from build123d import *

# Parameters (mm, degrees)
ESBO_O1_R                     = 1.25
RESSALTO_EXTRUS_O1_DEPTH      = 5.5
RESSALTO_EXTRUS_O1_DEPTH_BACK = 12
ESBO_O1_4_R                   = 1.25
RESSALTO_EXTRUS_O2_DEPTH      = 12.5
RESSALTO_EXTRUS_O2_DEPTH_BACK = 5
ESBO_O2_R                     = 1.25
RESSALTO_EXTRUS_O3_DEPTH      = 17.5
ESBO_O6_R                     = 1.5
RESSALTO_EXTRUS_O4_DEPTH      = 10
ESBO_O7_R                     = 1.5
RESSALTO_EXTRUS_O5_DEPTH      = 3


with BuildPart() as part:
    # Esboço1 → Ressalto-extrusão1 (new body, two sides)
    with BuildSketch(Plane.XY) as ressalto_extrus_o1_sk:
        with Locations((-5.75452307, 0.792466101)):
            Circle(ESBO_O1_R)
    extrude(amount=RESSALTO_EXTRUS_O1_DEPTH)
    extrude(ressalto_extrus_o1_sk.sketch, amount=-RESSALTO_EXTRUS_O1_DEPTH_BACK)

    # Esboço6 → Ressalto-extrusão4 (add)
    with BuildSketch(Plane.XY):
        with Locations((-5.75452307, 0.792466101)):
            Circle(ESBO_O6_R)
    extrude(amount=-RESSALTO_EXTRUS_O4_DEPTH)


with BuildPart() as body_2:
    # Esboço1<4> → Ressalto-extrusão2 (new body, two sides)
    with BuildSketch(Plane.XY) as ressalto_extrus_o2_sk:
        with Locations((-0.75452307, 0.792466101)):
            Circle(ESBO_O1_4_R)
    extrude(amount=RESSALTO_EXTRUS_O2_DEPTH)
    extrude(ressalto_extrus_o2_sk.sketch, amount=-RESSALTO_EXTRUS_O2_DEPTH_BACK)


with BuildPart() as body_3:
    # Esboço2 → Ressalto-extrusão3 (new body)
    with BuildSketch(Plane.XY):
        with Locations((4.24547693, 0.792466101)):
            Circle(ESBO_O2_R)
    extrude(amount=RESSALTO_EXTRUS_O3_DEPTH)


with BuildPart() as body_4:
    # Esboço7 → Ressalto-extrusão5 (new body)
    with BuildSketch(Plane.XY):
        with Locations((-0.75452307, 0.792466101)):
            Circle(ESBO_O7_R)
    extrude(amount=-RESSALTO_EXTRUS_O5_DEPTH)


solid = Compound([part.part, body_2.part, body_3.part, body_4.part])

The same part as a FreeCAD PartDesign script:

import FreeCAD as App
import Part
import Sketcher

V = App.Vector
Q = App.Units.Quantity

doc = App.newDocument("Part")
params = doc.addObject("Spreadsheet::Sheet", "Params")
for row, (alias, value) in enumerate([
    ("sketch1_diameter", "2.5 mm"),
    ("pad1_length", "5.5 mm"),
    ("pad1_length2", "12 mm"),
    ("sketch2_diameter", "3 mm"),
    ("pad2_length", "10 mm"),
    ("sketch3_diameter", "2.5 mm"),
    ("pad3_length", "12.5 mm"),
    ("pad3_length2", "5 mm"),
    ("sketch4_diameter", "2.5 mm"),
    ("pad4_length", "17.5 mm"),
    ("sketch5_diameter", "3 mm"),
    ("pad5_length", "3 mm"),
], start=1):
    params.set(f"A{row}", alias)
    params.set(f"B{row}", "=" + value)
    params.setAlias(f"B{row}", alias)

body = doc.addObject("PartDesign::Body", "Body")

sketch1 = body.newObject("Sketcher::SketchObject", "Sketch")
sketch1.AttachmentSupport = (doc.getObject("XY_Plane"), [""])
sketch1.MapMode = "FlatFace"
sketch1.addGeometry(Part.Circle(V(-5.8, 0.8, 0), V(0, 0, 1), 1.2), False)
sketch1.addConstraint([
    Sketcher.Constraint("Diameter", 0, Q("2.5 mm")),
    Sketcher.Constraint("DistanceX", 0, 3, -1, 1, Q("5.754523 mm")),
    Sketcher.Constraint("DistanceY", -1, 1, 0, 3, Q("0.792466 mm")),
])
sketch1.setExpression("Constraints[0]", "Params.sketch1_diameter")
pad1 = body.newObject("PartDesign::Pad", "Pad")
pad1.Profile = sketch1
pad1.Type = "TwoLengths"
pad1.setExpression("Length", "Params.pad1_length")
pad1.setExpression("Length2", "Params.pad1_length2")

sketch2 = body.newObject("Sketcher::SketchObject", "Sketch001")
sketch2.AttachmentSupport = (doc.getObject("XY_Plane"), [""])
sketch2.MapMode = "FlatFace"
sketch2.addGeometry(Part.Circle(V(-5.8, 0.8, 0), V(0, 0, 1), 1.5), False)
sketch2.addConstraint([
    Sketcher.Constraint("Diameter", 0, Q("3 mm")),
    Sketcher.Constraint("DistanceX", 0, 3, -1, 1, Q("5.754523 mm")),
    Sketcher.Constraint("DistanceY", -1, 1, 0, 3, Q("0.792466 mm")),
])
sketch2.setExpression("Constraints[0]", "Params.sketch2_diameter")
pad2 = body.newObject("PartDesign::Pad", "Pad001")
pad2.Profile = sketch2
pad2.setExpression("Length", "Params.pad2_length")
pad2.Reversed = True
body2 = doc.addObject("PartDesign::Body", "Body001")

sketch3 = body2.newObject("Sketcher::SketchObject", "Sketch002")
sketch3.AttachmentSupport = (doc.getObject("XY_Plane001"), [""])
sketch3.MapMode = "FlatFace"
sketch3.addGeometry(Part.Circle(V(-0.8, 0.8, 0), V(0, 0, 1), 1.2), False)
sketch3.addConstraint([
    Sketcher.Constraint("Diameter", 0, Q("2.5 mm")),
    Sketcher.Constraint("DistanceX", 0, 3, -1, 1, Q("0.754523 mm")),
    Sketcher.Constraint("DistanceY", -1, 1, 0, 3, Q("0.792466 mm")),
])
sketch3.setExpression("Constraints[0]", "Params.sketch3_diameter")
pad3 = body2.newObject("PartDesign::Pad", "Pad002")
pad3.Profile = sketch3
pad3.Type = "TwoLengths"
pad3.setExpression("Length", "Params.pad3_length")
pad3.setExpression("Length2", "Params.pad3_length2")
body3 = doc.addObject("PartDesign::Body", "Body002")

sketch4 = body3.newObject("Sketcher::SketchObject", "Sketch003")
sketch4.AttachmentSupport = (doc.getObject("XY_Plane002"), [""])
sketch4.MapMode = "FlatFace"
sketch4.addGeometry(Part.Circle(V(4.2, 0.8, 0), V(0, 0, 1), 1.2), False)
sketch4.addConstraint([
    Sketcher.Constraint("Diameter", 0, Q("2.5 mm")),
    Sketcher.Constraint("DistanceX", -1, 1, 0, 3, Q("4.245477 mm")),
    Sketcher.Constraint("DistanceY", -1, 1, 0, 3, Q("0.792466 mm")),
])
sketch4.setExpression("Constraints[0]", "Params.sketch4_diameter")
pad4 = body3.newObject("PartDesign::Pad", "Pad003")
pad4.Profile = sketch4
pad4.setExpression("Length", "Params.pad4_length")
body4 = doc.addObject("PartDesign::Body", "Body003")

sketch5 = body4.newObject("Sketcher::SketchObject", "Sketch004")
sketch5.AttachmentSupport = (doc.getObject("XY_Plane003"), [""])
sketch5.MapMode = "FlatFace"
sketch5.addGeometry(Part.Circle(V(-0.8, 0.8, 0), V(0, 0, 1), 1.5), False)
sketch5.addConstraint([
    Sketcher.Constraint("Diameter", 0, Q("3 mm")),
    Sketcher.Constraint("DistanceX", 0, 3, -1, 1, Q("0.754523 mm")),
    Sketcher.Constraint("DistanceY", -1, 1, 0, 3, Q("0.792466 mm")),
])
sketch5.setExpression("Constraints[0]", "Params.sketch5_diameter")
pad5 = body4.newObject("PartDesign::Pad", "Pad004")
pad5.Profile = sketch5
pad5.setExpression("Length", "Params.pad5_length")
pad5.Reversed = True

doc.recompute()
